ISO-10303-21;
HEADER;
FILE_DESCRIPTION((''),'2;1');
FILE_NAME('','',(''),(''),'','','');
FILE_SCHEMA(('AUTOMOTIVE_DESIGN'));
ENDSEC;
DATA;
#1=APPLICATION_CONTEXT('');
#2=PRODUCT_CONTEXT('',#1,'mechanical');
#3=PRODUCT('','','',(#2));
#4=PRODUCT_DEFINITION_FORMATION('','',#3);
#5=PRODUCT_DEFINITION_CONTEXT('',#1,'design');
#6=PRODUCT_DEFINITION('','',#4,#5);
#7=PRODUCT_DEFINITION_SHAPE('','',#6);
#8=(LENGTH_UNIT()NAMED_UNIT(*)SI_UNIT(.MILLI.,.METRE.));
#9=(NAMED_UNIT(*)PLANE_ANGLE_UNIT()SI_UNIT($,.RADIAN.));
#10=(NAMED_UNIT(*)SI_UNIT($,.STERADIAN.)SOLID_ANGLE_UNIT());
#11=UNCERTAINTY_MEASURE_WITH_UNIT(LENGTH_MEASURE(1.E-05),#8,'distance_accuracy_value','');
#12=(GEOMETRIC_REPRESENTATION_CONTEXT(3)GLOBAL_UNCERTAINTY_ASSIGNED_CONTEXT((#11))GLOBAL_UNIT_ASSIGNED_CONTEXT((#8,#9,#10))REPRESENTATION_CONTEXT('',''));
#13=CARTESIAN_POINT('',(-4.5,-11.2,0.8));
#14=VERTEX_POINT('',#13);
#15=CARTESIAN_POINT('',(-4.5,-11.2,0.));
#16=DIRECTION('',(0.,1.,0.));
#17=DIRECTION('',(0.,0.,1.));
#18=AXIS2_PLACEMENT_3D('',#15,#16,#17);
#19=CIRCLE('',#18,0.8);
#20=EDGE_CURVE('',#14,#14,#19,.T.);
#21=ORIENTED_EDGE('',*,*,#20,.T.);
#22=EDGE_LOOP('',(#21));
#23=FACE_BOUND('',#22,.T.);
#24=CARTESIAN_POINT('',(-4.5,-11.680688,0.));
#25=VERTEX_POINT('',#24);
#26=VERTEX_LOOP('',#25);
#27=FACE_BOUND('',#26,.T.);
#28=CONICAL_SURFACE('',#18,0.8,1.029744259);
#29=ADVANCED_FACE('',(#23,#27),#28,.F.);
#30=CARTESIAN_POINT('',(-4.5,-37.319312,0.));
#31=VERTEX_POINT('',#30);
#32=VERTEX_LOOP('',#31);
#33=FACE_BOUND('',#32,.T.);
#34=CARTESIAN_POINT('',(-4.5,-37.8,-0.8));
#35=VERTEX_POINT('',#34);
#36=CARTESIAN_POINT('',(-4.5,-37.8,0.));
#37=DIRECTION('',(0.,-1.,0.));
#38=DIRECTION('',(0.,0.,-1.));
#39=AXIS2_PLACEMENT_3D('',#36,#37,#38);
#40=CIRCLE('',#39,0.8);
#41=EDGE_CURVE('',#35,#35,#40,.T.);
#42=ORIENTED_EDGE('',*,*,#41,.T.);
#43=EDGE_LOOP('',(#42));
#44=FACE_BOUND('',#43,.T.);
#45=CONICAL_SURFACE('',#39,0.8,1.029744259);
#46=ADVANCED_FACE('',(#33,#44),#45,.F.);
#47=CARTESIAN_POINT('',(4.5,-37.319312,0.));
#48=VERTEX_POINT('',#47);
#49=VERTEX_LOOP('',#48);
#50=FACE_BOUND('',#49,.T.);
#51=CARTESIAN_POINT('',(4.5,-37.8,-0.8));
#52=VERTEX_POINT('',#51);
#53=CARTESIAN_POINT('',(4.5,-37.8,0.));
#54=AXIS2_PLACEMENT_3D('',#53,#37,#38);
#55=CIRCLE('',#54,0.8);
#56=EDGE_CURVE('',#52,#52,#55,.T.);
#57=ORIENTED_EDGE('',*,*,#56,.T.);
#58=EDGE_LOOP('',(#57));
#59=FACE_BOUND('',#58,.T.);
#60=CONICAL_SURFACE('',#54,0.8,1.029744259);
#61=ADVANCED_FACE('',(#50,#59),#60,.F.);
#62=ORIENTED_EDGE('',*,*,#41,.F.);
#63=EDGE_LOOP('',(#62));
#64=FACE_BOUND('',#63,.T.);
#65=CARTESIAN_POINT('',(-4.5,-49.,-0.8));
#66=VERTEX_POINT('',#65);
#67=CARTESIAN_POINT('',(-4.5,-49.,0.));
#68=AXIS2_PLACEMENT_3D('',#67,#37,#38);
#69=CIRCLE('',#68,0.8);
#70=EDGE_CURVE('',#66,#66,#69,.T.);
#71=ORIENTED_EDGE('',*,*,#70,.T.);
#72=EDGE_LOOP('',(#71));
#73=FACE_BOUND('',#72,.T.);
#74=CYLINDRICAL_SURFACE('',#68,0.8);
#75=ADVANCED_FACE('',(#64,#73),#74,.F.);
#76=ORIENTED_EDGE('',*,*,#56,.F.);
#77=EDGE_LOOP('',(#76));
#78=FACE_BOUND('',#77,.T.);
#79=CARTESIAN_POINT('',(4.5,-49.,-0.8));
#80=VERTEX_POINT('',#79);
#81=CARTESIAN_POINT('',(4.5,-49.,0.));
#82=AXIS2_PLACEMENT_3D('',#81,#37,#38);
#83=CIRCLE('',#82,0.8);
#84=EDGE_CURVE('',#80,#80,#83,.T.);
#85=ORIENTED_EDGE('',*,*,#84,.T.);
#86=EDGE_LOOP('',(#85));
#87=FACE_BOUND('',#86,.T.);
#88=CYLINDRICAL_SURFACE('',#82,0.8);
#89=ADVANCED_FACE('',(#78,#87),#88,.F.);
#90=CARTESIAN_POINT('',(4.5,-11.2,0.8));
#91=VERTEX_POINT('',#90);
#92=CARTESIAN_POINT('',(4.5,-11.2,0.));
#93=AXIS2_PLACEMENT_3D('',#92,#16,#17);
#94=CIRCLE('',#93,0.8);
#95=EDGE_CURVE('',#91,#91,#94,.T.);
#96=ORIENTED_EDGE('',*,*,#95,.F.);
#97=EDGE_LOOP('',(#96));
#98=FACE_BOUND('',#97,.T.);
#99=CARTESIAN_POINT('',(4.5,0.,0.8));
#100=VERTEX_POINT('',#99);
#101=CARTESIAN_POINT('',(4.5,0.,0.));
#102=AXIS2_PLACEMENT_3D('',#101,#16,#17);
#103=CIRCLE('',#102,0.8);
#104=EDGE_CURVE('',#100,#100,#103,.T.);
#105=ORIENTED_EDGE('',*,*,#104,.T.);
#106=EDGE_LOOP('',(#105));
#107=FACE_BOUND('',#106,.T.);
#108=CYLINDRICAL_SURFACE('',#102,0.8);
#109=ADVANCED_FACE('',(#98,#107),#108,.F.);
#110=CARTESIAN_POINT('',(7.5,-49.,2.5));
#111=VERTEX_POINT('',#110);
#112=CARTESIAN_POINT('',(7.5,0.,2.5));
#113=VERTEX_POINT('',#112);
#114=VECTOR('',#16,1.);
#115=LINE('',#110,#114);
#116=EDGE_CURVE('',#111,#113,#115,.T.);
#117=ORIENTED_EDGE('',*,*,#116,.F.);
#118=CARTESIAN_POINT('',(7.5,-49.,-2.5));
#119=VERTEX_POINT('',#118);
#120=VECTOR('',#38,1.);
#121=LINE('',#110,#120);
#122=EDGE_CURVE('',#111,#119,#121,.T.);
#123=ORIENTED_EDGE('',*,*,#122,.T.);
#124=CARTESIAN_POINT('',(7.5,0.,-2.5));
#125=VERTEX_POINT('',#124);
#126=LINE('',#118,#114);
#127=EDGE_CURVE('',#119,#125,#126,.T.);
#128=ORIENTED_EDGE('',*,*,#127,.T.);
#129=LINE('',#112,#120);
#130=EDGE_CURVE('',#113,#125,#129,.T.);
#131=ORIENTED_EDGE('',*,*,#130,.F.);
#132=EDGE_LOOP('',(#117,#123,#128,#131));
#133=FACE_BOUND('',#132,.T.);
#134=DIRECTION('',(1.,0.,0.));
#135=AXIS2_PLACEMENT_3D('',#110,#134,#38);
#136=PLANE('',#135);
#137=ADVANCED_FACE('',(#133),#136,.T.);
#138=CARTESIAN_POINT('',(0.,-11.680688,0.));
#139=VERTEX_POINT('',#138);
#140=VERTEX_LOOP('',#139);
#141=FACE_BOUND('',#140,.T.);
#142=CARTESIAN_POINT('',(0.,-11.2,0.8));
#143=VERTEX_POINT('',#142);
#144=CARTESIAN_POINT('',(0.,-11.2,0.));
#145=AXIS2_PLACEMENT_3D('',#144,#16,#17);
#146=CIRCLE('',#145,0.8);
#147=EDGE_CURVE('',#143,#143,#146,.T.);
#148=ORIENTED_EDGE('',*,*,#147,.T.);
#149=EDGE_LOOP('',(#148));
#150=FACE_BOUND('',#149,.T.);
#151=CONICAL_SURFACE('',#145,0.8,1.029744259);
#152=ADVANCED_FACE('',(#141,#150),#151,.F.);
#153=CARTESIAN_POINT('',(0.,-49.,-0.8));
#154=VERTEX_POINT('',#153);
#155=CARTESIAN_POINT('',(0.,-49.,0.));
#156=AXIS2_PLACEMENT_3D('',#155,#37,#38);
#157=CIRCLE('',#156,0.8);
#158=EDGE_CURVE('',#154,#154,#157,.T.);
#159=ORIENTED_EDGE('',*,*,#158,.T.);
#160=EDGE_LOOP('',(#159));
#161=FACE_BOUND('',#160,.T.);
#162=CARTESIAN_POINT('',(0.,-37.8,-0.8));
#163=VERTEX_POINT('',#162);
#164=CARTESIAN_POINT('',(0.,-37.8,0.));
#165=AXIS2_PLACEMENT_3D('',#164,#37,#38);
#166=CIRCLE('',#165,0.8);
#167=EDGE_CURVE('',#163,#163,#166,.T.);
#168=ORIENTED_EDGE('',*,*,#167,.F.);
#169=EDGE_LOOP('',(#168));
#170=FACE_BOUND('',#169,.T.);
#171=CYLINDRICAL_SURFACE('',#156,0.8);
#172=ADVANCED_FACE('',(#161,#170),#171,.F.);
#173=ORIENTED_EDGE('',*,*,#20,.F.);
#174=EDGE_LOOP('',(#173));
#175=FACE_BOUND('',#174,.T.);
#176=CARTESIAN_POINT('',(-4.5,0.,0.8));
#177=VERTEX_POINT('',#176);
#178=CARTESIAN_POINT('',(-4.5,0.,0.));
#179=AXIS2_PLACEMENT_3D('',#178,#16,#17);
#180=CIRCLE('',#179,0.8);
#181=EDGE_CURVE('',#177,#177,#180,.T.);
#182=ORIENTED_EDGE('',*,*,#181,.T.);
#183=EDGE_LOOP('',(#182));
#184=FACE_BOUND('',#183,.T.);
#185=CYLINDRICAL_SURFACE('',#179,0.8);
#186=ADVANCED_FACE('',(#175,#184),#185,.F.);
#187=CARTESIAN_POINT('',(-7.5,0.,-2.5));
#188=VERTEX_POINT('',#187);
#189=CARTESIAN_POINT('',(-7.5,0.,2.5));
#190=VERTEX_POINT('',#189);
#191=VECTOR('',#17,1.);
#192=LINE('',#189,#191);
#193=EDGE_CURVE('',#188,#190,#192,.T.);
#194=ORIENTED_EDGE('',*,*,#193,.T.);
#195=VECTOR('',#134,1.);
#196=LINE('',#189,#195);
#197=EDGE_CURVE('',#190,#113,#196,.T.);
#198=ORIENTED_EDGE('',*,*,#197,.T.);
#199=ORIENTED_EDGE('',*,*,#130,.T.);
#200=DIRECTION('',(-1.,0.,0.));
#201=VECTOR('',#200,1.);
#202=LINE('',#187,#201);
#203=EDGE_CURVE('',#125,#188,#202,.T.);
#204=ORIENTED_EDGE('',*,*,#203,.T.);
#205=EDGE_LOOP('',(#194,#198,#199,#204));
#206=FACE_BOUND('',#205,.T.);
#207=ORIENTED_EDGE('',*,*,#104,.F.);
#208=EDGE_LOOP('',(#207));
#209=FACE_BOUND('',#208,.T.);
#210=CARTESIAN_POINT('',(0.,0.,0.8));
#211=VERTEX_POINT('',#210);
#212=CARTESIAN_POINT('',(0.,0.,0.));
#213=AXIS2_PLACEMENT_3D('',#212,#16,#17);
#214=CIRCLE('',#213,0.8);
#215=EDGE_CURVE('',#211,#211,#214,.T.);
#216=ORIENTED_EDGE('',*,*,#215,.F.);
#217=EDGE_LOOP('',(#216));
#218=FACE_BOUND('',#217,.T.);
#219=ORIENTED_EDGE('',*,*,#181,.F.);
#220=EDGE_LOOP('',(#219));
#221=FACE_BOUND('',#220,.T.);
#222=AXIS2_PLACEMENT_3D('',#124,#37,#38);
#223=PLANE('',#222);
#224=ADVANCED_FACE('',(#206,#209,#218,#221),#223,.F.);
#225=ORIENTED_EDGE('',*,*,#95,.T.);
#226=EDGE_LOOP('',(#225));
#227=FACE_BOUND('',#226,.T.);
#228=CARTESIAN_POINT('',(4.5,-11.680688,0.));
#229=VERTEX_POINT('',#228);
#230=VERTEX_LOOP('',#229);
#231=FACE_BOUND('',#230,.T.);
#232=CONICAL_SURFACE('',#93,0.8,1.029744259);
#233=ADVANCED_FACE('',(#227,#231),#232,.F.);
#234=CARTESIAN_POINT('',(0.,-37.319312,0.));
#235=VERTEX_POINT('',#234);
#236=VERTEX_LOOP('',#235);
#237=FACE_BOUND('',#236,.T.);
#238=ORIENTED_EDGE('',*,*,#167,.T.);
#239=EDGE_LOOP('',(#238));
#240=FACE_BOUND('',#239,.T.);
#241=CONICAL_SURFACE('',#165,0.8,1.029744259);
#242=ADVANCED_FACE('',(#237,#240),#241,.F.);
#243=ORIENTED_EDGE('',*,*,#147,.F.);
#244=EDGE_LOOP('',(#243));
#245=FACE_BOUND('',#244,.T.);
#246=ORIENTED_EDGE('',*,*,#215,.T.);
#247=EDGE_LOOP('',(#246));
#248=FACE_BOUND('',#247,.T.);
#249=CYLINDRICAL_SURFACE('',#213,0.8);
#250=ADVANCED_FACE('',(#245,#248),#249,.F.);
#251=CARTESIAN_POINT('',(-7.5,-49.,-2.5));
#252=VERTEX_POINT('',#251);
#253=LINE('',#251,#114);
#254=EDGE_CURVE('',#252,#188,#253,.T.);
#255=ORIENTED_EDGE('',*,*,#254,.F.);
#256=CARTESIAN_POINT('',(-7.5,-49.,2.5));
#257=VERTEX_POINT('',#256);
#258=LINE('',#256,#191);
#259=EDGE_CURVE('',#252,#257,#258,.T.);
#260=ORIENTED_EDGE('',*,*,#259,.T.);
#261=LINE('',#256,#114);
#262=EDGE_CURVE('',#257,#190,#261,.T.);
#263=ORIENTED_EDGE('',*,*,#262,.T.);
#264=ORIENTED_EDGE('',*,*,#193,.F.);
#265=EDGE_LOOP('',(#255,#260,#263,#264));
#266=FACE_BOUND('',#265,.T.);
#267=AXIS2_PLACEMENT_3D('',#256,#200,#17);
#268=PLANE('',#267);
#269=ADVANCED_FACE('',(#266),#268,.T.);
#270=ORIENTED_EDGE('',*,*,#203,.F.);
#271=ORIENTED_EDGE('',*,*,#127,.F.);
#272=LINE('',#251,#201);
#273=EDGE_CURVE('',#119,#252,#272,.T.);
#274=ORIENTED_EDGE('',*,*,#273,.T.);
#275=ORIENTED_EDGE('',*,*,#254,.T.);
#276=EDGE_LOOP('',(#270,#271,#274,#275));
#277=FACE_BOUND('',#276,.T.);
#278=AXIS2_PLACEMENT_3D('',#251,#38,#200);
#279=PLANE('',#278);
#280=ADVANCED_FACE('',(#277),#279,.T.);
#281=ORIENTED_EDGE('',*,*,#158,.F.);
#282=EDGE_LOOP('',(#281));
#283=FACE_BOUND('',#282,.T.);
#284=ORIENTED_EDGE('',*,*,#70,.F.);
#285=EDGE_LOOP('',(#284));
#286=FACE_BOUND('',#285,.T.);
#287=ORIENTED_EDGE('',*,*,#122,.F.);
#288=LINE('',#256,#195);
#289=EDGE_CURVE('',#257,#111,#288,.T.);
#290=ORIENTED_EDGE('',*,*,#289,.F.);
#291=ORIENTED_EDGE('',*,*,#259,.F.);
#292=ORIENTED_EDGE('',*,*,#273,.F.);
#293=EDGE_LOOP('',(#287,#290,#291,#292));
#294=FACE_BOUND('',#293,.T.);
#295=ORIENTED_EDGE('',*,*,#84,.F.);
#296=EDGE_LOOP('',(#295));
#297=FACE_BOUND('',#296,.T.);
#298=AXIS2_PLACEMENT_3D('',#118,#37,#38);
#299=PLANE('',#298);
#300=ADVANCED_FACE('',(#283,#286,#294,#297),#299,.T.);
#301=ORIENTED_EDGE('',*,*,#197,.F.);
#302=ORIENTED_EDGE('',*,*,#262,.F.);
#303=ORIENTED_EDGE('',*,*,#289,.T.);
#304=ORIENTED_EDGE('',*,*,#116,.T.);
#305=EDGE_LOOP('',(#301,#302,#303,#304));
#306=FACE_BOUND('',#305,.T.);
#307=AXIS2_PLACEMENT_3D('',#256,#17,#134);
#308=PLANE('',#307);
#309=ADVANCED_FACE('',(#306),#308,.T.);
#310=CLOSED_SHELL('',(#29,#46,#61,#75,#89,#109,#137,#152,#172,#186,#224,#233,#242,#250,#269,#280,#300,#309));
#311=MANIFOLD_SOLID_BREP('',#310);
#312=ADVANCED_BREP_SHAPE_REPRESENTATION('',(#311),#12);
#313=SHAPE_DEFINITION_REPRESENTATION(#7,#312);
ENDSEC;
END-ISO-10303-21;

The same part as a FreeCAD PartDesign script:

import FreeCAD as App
import Part
import Sketcher

V = App.Vector


def add_polygon(sketch, points):
    """Adds a closed chain of lines whose ends are joined by coincident constraints."""
    first, n = sketch.GeometryCount, len(points)
    for a, b in zip(points, points[1:] + points[:1]):
        sketch.addGeometry(Part.LineSegment(App.Vector(*a, 0), App.Vector(*b, 0)), False)
    for i in range(n):
        sketch.addConstraint(Sketcher.Constraint("Coincident", first + i, 2, first + (i + 1) % n, 1))

doc = App.newDocument("Part")
body = doc.addObject("PartDesign::Body", "Body")

# Sketch on XZ plane
sketch1 = body.newObject("Sketcher::SketchObject", "Sketch")
sketch1.AttachmentSupport = (doc.getObject("XZ_Plane"), [""])
sketch1.MapMode = "FlatFace"
add_polygon(sketch1, [(-8, -2), (-8, 2), (8, 2), (8, -2)])  # lines 0-3
sketch1.addConstraint([
    Sketcher.Constraint("Vertical", 0),
    Sketcher.Constraint("Horizontal", 1),
    Sketcher.Constraint("Vertical", 2),
    Sketcher.Constraint("Horizontal", 3),
    Sketcher.Constraint("Symmetric", 0, 2, 2, 2, -1, 1),
    Sketcher.Constraint("DistanceX", 1, 1, 1, 2, 15.0),
    Sketcher.Constraint("DistanceY", 0, 1, 0, 2, 5.0),
])
pad1 = body.newObject("PartDesign::Pad", "Pad")
pad1.Profile = sketch1
pad1.Length = 49

# Sketch on XZ plane
sketch2 = body.newObject("Sketcher::SketchObject", "Sketch001")
sketch2.AttachmentSupport = (doc.getObject("XZ_Plane"), [""])
sketch2.MapMode = "FlatFace"
sketch2.AttachmentOffset = App.Placement(V(0, 0, 49), App.Rotation())
sketch2.addGeometry([
    Part.Circle(V(-4.5, 0, 0), V(0, 0, 1), 0.8),
    Part.Circle(V(4.5, 0, 0), V(0, 0, 1), 0.8),
    Part.Circle(V(0, 0, 0), V(0, 0, 1), 0.8),
], False)
sketch2.addConstraint([
    Sketcher.Constraint("Coincident", 2, 3, -1, 1),
    Sketcher.Constraint("Equal", 0, 1),
    Sketcher.Constraint("Equal", 1, 2),
    Sketcher.Constraint("Symmetric", 0, 3, 1, 3, -1, 1),
    Sketcher.Constraint("PointOnObject", 0, 3, -1),
    Sketcher.Constraint("Diameter", 0, 1.6),
    Sketcher.Constraint("DistanceX", 0, 3, 1, 3, 9.0),
])
doc.recompute()
hole = body.newObject("PartDesign::Hole", "Hole")
hole.Profile = sketch2
hole.ThreadType = "None"
hole.Diameter = 1.6
hole.DepthType = "Dimension"
hole.Depth = 11.2
hole.DrillPoint = "Angled"
hole.DrillPointAngle = 118

# Sketch on XZ plane
sketch3 = body.newObject("Sketcher::SketchObject", "Sketch002")
sketch3.AttachmentSupport = (doc.getObject("XZ_Plane"), [""])
sketch3.MapMode = "FlatFace"
sketch3.addGeometry([
    Part.Circle(V(-4.5, 0, 0), V(0, 0, 1), 0.8),
    Part.Circle(V(0, 0, 0), V(0, 0, 1), 0.8),
    Part.Circle(V(4.5, 0, 0), V(0, 0, 1), 0.8),
], False)
sketch3.addConstraint([
    Sketcher.Constraint("Coincident", 1, 3, -1, 1),
    Sketcher.Constraint("Equal", 0, 1),
    Sketcher.Constraint("Equal", 1, 2),
    Sketcher.Constraint("Symmetric", 0, 3, 2, 3, -1, 1),
    Sketcher.Constraint("PointOnObject", 0, 3, -1),
    Sketcher.Constraint("Diameter", 0, 1.6),
    Sketcher.Constraint("DistanceX", 0, 3, 2, 3, 9.0),
])
doc.recompute()
hole2 = body.newObject("PartDesign::Hole", "Hole001")
hole2.Profile = sketch3
hole2.ThreadType = "None"
hole2.Diameter = 1.6
hole2.DepthType = "Dimension"
hole2.Depth = 11.2
hole2.DrillPoint = "Angled"
hole2.DrillPointAngle = 118
hole2.Reversed = True

doc.recompute()
